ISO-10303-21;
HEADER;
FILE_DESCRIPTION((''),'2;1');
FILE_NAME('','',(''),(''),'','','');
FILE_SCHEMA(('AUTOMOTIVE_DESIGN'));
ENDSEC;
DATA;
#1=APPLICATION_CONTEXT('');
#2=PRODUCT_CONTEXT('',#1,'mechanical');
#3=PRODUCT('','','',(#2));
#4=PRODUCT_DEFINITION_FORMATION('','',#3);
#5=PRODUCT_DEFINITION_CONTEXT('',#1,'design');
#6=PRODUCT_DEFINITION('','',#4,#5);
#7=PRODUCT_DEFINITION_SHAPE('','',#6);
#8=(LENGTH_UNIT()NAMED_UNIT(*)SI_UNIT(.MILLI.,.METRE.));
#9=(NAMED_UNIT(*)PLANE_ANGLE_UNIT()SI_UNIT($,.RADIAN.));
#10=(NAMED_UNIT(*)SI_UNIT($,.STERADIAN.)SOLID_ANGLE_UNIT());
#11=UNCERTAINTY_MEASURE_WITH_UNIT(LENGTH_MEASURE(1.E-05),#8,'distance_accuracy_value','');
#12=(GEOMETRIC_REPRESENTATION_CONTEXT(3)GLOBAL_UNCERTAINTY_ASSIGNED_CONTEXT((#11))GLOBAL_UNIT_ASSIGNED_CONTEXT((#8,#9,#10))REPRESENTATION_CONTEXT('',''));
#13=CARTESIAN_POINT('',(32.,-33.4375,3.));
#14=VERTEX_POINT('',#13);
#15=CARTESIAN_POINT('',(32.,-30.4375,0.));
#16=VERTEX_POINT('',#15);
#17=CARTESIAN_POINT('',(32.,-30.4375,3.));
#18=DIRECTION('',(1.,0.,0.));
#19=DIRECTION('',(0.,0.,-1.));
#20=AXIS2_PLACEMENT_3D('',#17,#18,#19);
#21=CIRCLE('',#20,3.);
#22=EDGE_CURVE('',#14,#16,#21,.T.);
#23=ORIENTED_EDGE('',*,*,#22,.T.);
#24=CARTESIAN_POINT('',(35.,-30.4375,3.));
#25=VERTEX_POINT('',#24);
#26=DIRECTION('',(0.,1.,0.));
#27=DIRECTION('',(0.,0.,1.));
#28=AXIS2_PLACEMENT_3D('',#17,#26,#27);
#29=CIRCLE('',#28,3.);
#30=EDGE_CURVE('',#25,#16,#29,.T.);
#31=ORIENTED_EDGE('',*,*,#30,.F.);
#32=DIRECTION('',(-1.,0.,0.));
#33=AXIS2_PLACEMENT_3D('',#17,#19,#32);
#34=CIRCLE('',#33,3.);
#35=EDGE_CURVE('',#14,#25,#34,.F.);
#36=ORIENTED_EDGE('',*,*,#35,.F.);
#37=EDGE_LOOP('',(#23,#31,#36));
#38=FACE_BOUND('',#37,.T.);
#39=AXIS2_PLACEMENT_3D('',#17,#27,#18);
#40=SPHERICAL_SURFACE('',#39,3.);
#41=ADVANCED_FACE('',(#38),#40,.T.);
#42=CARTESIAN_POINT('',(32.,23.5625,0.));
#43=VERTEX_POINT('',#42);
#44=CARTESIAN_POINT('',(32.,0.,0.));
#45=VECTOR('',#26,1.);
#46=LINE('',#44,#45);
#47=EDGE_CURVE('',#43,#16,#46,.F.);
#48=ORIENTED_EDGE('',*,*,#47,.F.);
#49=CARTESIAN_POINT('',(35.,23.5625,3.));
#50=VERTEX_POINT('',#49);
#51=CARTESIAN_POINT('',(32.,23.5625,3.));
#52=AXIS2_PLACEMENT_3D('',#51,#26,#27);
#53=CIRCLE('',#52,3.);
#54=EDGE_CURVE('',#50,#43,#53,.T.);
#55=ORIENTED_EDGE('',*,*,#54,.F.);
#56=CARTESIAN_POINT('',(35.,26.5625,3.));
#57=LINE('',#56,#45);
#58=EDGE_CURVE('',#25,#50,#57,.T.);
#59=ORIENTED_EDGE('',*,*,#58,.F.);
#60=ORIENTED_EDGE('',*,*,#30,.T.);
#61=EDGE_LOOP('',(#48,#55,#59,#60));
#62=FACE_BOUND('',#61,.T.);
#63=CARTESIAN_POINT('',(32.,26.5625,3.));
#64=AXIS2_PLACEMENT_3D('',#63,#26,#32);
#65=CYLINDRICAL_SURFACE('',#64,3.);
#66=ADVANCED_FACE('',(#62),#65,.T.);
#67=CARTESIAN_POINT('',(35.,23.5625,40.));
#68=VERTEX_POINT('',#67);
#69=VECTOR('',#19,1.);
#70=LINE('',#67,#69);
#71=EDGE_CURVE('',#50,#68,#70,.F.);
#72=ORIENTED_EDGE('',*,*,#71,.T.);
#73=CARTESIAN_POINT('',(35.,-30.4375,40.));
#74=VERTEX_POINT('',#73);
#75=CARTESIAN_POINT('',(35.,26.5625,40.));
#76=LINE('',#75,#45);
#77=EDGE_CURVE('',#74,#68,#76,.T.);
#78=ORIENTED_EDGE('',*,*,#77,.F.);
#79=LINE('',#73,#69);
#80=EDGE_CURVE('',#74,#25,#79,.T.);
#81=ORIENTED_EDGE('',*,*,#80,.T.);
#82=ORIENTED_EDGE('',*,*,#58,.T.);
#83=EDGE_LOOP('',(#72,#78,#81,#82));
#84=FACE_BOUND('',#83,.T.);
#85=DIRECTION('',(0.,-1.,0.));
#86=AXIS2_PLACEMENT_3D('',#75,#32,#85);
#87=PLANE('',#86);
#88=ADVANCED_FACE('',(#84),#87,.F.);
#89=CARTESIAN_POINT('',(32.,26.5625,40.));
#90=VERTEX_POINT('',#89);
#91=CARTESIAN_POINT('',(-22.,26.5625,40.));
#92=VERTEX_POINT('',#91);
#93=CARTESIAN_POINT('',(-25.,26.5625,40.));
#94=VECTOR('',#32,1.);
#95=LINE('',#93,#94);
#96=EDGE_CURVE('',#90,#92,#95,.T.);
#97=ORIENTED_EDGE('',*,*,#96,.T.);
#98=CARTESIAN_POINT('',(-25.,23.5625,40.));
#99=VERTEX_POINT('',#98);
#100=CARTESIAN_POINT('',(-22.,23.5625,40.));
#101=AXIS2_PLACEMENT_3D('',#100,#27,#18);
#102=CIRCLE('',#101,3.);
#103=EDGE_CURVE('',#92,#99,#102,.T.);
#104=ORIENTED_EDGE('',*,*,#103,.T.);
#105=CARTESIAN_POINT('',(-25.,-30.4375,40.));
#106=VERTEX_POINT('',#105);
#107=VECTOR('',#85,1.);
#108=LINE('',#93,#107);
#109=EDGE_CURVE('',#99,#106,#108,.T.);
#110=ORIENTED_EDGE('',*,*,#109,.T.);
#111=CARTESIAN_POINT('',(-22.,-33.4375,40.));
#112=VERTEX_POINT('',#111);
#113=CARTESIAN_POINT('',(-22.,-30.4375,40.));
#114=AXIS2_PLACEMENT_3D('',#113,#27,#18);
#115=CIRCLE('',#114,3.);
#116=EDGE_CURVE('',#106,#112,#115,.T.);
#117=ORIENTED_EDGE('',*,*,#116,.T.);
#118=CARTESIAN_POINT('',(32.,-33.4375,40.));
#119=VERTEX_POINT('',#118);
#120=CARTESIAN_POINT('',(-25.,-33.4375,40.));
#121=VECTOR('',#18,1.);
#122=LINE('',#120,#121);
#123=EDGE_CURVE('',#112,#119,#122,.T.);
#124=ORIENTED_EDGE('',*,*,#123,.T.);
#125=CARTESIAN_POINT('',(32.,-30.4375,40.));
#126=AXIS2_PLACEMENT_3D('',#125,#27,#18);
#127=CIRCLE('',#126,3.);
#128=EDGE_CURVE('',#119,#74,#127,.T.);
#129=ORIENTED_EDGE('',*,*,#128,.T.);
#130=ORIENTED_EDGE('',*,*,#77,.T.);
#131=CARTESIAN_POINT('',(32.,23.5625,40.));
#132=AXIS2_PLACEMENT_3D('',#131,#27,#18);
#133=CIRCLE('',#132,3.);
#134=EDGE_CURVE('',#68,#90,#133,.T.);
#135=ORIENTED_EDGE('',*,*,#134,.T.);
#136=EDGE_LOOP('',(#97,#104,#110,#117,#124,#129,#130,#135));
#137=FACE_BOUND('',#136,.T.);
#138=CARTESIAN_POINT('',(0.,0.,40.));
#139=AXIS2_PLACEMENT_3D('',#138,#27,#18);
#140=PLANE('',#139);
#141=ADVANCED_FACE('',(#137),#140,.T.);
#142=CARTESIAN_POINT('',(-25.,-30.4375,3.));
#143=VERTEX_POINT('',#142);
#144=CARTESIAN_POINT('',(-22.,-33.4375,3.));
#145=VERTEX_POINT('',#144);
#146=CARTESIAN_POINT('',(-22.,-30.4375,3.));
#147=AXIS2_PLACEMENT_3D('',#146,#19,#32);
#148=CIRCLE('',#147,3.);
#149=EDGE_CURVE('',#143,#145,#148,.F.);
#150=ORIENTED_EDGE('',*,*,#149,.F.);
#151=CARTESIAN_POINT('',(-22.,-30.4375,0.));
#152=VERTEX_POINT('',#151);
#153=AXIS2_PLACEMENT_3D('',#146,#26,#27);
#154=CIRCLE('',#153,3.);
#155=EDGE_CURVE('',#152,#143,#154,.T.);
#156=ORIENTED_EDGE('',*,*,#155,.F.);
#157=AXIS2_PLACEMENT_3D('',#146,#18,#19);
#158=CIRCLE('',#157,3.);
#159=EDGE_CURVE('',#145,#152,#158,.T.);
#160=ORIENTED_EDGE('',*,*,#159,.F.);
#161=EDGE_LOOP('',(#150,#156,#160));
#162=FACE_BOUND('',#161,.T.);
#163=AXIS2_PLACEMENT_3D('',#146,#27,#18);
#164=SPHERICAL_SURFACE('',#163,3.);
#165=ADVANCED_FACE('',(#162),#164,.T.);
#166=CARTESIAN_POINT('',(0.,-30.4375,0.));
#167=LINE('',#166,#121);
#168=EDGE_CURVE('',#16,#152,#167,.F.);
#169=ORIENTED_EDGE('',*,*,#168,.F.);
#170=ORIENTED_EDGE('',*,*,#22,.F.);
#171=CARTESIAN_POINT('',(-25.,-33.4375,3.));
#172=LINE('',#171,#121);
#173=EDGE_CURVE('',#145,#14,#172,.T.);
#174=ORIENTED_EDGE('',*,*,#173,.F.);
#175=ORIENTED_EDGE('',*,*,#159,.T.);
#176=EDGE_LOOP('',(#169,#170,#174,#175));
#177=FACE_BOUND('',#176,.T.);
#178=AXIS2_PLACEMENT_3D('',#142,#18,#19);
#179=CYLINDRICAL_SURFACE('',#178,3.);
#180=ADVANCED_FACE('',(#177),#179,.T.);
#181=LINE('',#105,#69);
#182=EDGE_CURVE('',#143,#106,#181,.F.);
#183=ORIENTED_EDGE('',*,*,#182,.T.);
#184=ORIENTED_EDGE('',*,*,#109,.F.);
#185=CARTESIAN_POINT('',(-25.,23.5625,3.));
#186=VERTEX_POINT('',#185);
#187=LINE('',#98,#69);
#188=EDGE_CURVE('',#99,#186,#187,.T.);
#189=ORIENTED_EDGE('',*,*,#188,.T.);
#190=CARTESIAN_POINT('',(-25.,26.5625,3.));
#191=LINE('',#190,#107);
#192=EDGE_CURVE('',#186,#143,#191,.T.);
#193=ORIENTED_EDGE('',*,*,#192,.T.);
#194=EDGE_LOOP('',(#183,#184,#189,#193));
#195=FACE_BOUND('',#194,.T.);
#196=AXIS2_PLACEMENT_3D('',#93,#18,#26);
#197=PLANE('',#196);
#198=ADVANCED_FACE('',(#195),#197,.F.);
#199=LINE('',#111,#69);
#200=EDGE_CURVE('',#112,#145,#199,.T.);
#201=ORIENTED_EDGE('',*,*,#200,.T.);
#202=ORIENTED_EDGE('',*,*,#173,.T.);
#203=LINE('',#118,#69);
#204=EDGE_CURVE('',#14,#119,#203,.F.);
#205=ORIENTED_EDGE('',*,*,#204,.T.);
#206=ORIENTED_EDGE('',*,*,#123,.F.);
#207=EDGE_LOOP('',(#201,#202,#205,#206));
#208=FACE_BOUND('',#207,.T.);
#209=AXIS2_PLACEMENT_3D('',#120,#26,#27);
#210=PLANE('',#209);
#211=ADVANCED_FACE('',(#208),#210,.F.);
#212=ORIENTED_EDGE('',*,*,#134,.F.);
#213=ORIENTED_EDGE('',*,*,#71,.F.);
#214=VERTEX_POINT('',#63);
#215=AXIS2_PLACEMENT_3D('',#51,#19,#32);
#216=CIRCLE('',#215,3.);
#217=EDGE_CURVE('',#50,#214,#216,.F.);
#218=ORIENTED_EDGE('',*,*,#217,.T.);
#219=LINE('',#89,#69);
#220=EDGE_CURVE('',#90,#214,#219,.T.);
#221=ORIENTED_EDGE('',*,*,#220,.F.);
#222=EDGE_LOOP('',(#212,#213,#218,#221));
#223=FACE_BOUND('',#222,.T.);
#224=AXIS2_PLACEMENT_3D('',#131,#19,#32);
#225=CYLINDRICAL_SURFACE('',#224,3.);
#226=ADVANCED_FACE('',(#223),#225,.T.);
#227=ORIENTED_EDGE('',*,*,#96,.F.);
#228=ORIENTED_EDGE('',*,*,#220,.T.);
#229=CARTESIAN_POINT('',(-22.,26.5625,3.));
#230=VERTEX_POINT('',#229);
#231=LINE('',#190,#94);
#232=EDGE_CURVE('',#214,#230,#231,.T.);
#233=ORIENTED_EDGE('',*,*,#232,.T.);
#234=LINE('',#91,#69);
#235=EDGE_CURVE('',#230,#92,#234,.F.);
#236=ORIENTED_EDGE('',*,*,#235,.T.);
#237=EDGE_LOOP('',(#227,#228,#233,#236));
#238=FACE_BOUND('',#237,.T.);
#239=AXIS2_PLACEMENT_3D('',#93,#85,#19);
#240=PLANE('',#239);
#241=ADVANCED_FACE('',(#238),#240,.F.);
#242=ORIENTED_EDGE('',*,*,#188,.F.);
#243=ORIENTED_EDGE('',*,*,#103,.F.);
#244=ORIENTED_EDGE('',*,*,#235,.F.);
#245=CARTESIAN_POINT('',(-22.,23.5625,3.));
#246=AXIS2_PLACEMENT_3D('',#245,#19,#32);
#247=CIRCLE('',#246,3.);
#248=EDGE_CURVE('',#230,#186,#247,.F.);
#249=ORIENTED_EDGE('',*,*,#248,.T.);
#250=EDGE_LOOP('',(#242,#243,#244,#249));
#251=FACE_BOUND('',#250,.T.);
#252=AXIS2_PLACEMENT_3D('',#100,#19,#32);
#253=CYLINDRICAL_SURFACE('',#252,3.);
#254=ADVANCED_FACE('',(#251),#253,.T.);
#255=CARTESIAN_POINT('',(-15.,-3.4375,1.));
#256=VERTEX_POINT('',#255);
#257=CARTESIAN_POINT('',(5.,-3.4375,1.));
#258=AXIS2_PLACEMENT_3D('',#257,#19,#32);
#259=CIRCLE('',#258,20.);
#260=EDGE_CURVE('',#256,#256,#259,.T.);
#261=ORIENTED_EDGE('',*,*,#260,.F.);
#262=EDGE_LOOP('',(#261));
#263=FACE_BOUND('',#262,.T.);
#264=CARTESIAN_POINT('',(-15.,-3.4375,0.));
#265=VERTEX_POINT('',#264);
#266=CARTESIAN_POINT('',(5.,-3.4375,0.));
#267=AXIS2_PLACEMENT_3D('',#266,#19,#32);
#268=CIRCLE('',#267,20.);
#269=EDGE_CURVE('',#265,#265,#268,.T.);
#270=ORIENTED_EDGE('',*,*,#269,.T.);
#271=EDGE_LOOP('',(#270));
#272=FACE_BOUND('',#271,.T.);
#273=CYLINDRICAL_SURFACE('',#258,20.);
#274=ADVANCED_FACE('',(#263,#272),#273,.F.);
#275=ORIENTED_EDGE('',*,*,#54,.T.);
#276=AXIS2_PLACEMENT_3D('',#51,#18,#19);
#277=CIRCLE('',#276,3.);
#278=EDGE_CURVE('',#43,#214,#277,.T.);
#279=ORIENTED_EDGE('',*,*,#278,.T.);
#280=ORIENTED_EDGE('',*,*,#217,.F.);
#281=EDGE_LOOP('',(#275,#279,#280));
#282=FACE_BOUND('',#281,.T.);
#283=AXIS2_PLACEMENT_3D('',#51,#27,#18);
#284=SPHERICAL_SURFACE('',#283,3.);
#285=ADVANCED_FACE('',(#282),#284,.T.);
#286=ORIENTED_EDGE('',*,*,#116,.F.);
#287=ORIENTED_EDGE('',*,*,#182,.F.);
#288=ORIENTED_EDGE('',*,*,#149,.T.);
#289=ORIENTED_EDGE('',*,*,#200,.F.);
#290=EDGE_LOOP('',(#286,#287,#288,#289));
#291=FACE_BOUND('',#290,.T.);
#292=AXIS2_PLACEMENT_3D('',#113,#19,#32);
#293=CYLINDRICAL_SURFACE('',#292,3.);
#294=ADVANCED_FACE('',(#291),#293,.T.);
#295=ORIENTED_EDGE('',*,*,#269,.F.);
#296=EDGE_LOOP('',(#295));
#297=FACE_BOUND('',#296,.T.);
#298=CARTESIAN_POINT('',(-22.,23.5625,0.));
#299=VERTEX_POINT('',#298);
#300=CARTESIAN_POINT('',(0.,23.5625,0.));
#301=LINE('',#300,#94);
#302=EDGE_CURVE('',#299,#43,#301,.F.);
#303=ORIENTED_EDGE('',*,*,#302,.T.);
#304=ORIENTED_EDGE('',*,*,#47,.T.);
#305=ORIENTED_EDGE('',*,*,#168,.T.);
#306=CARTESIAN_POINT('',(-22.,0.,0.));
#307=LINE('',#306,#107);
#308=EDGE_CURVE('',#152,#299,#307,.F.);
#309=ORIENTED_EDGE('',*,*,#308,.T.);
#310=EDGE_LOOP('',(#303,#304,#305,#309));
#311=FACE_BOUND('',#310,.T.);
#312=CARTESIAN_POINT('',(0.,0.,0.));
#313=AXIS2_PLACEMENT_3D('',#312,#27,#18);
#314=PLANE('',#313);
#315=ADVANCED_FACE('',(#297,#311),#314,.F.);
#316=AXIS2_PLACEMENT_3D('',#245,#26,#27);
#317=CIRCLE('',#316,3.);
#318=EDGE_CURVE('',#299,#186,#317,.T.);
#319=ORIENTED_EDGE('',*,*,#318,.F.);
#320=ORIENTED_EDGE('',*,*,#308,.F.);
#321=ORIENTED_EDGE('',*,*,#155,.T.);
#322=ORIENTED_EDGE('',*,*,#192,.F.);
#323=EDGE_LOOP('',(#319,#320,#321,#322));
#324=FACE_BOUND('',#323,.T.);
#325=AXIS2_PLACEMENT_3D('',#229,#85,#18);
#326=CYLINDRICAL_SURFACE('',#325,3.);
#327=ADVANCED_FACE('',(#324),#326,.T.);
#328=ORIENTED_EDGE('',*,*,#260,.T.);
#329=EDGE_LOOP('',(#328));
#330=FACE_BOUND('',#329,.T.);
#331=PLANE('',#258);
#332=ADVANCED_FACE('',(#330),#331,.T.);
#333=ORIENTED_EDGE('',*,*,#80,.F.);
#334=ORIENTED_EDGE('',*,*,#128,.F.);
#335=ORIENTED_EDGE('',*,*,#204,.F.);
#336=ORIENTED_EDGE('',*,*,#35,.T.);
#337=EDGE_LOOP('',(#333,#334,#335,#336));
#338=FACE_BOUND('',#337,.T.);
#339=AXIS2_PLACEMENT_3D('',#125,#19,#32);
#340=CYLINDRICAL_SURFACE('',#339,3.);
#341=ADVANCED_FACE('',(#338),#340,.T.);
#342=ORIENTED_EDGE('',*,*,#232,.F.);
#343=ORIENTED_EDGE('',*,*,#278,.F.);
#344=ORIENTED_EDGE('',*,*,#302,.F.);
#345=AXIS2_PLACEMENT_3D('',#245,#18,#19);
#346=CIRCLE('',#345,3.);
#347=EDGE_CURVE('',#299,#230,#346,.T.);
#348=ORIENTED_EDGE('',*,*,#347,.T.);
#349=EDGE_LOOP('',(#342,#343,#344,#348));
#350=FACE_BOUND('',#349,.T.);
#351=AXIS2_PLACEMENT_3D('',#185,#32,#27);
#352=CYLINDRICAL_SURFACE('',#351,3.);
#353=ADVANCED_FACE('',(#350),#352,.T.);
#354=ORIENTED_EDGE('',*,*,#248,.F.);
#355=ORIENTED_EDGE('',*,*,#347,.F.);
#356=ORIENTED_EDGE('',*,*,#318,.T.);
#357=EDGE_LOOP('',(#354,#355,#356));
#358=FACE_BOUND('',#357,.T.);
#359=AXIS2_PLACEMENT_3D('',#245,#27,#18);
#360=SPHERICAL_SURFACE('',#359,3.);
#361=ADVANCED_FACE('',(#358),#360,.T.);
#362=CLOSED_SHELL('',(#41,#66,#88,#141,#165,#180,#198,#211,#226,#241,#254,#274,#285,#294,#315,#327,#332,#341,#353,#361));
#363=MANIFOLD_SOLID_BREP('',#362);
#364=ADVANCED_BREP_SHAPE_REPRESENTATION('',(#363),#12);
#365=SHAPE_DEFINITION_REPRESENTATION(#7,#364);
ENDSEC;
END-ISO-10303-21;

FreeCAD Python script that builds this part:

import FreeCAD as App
import Part
import Sketcher
from FreeCAD import Vector


def edges_at(feature, points):
    """Names of the edges that pass closest to the given points."""
    edges = feature.Shape.Edges
    near = lambda p: min(range(len(edges)), key=lambda i: edges[i].distToShape(Part.Vertex(*p))[0])
    return sorted({f"Edge{near(p) + 1}" for p in points})

doc = App.newDocument("Part")
body = doc.addObject("PartDesign::Body", "Body")

# Sketch on XY plane
sketch1 = body.newObject("Sketcher::SketchObject", "Sketch")
sketch1.AttachmentSupport = (doc.getObject("XY_Plane"), [""])
sketch1.MapMode = "FlatFace"
sketch1.addGeometry([
    Part.LineSegment(Vector(-25, 27, 0), Vector(-25, -33, 0)),
    Part.LineSegment(Vector(-25, -33, 0), Vector(35, -33, 0)),
    Part.LineSegment(Vector(35, -33, 0), Vector(35, 27, 0)),
    Part.LineSegment(Vector(35, 27, 0), Vector(-25, 27, 0)),
], False)
sketch1.addConstraint([
    Sketcher.Constraint("Coincident", 0, 2, 1, 1),
    Sketcher.Constraint("Coincident", 1, 2, 2, 1),
    Sketcher.Constraint("Coincident", 2, 2, 3, 1),
    Sketcher.Constraint("Coincident", 3, 2, 0, 1),
    Sketcher.Constraint("Vertical", 0),
    Sketcher.Constraint("Horizontal", 1),
    Sketcher.Constraint("Vertical", 2),
    Sketcher.Constraint("Horizontal", 3),
    Sketcher.Constraint("Equal", 3, 0),
    Sketcher.Constraint("DistanceX", 1, 1, 1, 2, 60.0),
    Sketcher.Constraint("DistanceX", 0, 2, -1, 1, 25.0),
    Sketcher.Constraint("DistanceY", 0, 2, -1, 1, 33.4375),
])
pad1 = body.newObject("PartDesign::Pad", "Pad")
pad1.Profile = sketch1
pad1.Length = 40
doc.recompute()

fillet = body.newObject("PartDesign::Fillet", "Fillet")
fillet.Base = (pad1, edges_at(pad1, [
    (-25, 26.562, 20),
    (35, 26.562, 20),
    (35, -33.438, 20),
    (-25, -33.438, 20),
]))
fillet.Radius = 3
doc.recompute()

fillet2 = body.newObject("PartDesign::Fillet", "Fillet001")
fillet2.Base = (fillet, edges_at(fillet, [
    (35, -3.438, 0),
    (-25, -3.438, 0),
    (5, 26.562, 0),
    (5, -33.438, 0),
    (34.121, 25.684, 0),
    (-24.121, 25.684, 0),
    (-24.121, -32.559, 0),
    (34.121, -32.559, 0),
]))
fillet2.Radius = 3

# Sketch on XY plane
sketch2 = body.newObject("Sketcher::SketchObject", "Sketch001")
sketch2.AttachmentSupport = (doc.getObject("XY_Plane"), [""])
sketch2.MapMode = "FlatFace"
sketch2.addGeometry(Part.Circle(Vector(5, -3, 0), Vector(0, 0, 1), 20), False)
sketch2.addConstraint([
    Sketcher.Constraint("Diameter", 0, 40.0),
    Sketcher.Constraint("DistanceX", -1, 1, 0, 3, 5.0),
    Sketcher.Constraint("DistanceY", 0, 3, -1, 1, 3.4375),
])
pocket1 = body.newObject("PartDesign::Pocket", "Pocket")
pocket1.Profile = sketch2
pocket1.Length = 1
pocket1.Reversed = True

doc.recompute()
